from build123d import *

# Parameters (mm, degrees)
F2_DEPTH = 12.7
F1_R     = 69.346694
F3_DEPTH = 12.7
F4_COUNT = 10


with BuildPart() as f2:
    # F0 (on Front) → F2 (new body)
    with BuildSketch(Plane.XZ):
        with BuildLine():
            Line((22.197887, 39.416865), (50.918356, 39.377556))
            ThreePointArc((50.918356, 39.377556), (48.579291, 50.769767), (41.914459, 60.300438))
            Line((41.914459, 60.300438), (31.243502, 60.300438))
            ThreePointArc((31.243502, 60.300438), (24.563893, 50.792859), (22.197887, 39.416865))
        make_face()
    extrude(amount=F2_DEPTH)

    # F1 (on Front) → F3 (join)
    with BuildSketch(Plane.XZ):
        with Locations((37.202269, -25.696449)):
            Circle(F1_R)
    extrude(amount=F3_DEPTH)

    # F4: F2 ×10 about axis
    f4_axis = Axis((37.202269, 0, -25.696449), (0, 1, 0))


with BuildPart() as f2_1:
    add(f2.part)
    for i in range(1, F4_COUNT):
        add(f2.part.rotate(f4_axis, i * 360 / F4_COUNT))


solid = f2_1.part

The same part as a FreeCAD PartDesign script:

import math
import FreeCAD as App
import Part
import Sketcher
from FreeCAD import Vector
Q = App.Units.Quantity

doc = App.newDocument("Part")
body = doc.addObject("PartDesign::Body", "Body")

sketch1 = body.newObject("Sketcher::SketchObject", "Sketch")
sketch1.AttachmentSupport = (doc.getObject("XZ_Plane"), [""])
sketch1.MapMode = "FlatFace"
sketch1.addGeometry(Part.LineSegment(Vector(22, 39, 0), Vector(51, 39, 0)), False)
sketch1.addGeometry(Part.ArcOfCircle(Part.Circle(Vector(22, 39, 0), Vector(0, 0, 1), 29), math.radians(0), math.radians(47)), False)
sketch1.addGeometry(Part.LineSegment(Vector(42, 60, 0), Vector(31, 60, 0)), False)
sketch1.addGeometry(Part.ArcOfCircle(Part.Circle(Vector(51, 39, 0), Vector(0, 0, 1), 29), math.radians(133), math.radians(180)), False)
sketch1.addConstraint(Sketcher.Constraint("Coincident", 0, 2, 1, 1))
sketch1.addConstraint(Sketcher.Constraint("Coincident", 1, 2, 2, 1))
sketch1.addConstraint(Sketcher.Constraint("Coincident", 2, 2, 3, 1))
sketch1.addConstraint(Sketcher.Constraint("Coincident", 3, 2, 0, 1))
sketch1.addConstraint(Sketcher.Constraint("Horizontal", 2))
sketch1.addConstraint(Sketcher.Constraint("Coincident", 0, 2, 3, 3))
sketch1.addConstraint(Sketcher.Constraint("Coincident", 3, 2, 1, 3))
sketch1.addConstraint(Sketcher.Constraint("Radius", 3, 28.720499))
sketch1.addConstraint(Sketcher.Constraint("DistanceX", -1, 1, 2, 2, 31.243502))
sketch1.addConstraint(Sketcher.Constraint("DistanceX", 1, 2, 3, 3, 9.0039))
sketch1.addConstraint(Sketcher.Constraint("DistanceX", 2, 2, 2, 1, 10.670957))
sketch1.addConstraint(Sketcher.Constraint("DistanceY", -1, 1, 1, 2, 60.300438))
pad1 = body.newObject("PartDesign::Pad", "Pad")
pad1.Profile = sketch1
pad1.Length = Q("0.5 in")

sketch2 = body.newObject("Sketcher::SketchObject", "Sketch001")
sketch2.AttachmentSupport = (doc.getObject("XZ_Plane"), [""])
sketch2.MapMode = "FlatFace"
sketch2.addGeometry(Part.Circle(Vector(37, -26, 0), Vector(0, 0, 1), 69), False)
sketch2.addConstraint(Sketcher.Constraint("Diameter", 0, 138.693388))
sketch2.addConstraint(Sketcher.Constraint("DistanceX", -1, 1, 0, 3, 37.202269))
sketch2.addConstraint(Sketcher.Constraint("DistanceY", 0, 3, -1, 1, 25.696449))
pad2 = body.newObject("PartDesign::Pad", "Pad001")
pad2.Profile = sketch2
pad2.Length = Q("0.5 in")
body2 = doc.addObject("PartDesign::Body", "Body001")
doc.recompute()

body2.BaseFeature = body
doc.recompute()

body3 = doc.addObject("PartDesign::Body", "Body002")
body3.BaseFeature = body
body3.Placement = App.Placement(Vector(22.208995, 0, 16.95936), App.Rotation(Vector(0, 1, 0), 36))
boolean = body2.newObject("PartDesign::Boolean", "Boolean")
boolean.Type = "Fuse"
boolean.addObjects([body3])
doc.recompute()

body4 = doc.addObject("PartDesign::Body", "Body003")
body4.BaseFeature = body
body4.Placement = App.Placement(Vector(50.144911, 0, 17.625651), App.Rotation(Vector(0, 1, 0), 72))
boolean2 = body2.newObject("PartDesign::Boolean", "Boolean001")
boolean2.Type = "Fuse"
boolean2.addObjects([body4])
doc.recompute()

body5 = doc.addObject("PartDesign::Body", "Body004")
body5.BaseFeature = body
body5.Placement = App.Placement(Vector(73.137178, 0, 1.744372), App.Rotation(Vector(0, 1, 0), 108))
boolean3 = body2.newObject("PartDesign::Boolean", "Boolean002")
boolean3.Type = "Fuse"
boolean3.addObjects([body5])
doc.recompute()

body6 = doc.addObject("PartDesign::Body", "Body005")
body6.BaseFeature = body
body6.Placement = App.Placement(Vector(82.403531, 0, -24.618368), App.Rotation(Vector(0, 1, 0), 144))
boolean4 = body2.newObject("PartDesign::Boolean", "Boolean003")
boolean4.Type = "Fuse"
boolean4.addObjects([body6])
doc.recompute()

body7 = doc.addObject("PartDesign::Body", "Body006")
body7.BaseFeature = body
body7.Placement = App.Placement(Vector(74.404538, 0, -51.392898), App.Rotation(Vector(0, 1, 0), 180))
boolean5 = body2.newObject("PartDesign::Boolean", "Boolean004")
boolean5.Type = "Fuse"
boolean5.addObjects([body7])
doc.recompute()

body8 = doc.addObject("PartDesign::Body", "Body007")
body8.BaseFeature = body
body8.Placement = App.Placement(Vector(52.195543, 0, -68.352258), App.Rotation(Vector(0, 1, 0), 216))
boolean6 = body2.newObject("PartDesign::Boolean", "Boolean005")
boolean6.Type = "Fuse"
boolean6.addObjects([body8])
doc.recompute()

body9 = doc.addObject("PartDesign::Body", "Body008")
body9.BaseFeature = body
body9.Placement = App.Placement(Vector(24.259627, 0, -69.018549), App.Rotation(Vector(0, 1, 0), 252))
boolean7 = body2.newObject("PartDesign::Boolean", "Boolean006")
boolean7.Type = "Fuse"
boolean7.addObjects([body9])
doc.recompute()

body10 = doc.addObject("PartDesign::Body", "Body009")
body10.BaseFeature = body
body10.Placement = App.Placement(Vector(1.26736, 0, -53.13727), App.Rotation(Vector(0, 1, 0), 288))
boolean8 = body2.newObject("PartDesign::Boolean", "Boolean007")
boolean8.Type = "Fuse"
boolean8.addObjects([body10])
doc.recompute()

body.Placement = App.Placement(Vector(-7.998993, 0, -26.77453), App.Rotation(Vector(0, 1, 0), 324))
boolean9 = body2.newObject("PartDesign::Boolean", "Boolean008")
boolean9.Type = "Fuse"
boolean9.addObjects([body])

doc.recompute()
